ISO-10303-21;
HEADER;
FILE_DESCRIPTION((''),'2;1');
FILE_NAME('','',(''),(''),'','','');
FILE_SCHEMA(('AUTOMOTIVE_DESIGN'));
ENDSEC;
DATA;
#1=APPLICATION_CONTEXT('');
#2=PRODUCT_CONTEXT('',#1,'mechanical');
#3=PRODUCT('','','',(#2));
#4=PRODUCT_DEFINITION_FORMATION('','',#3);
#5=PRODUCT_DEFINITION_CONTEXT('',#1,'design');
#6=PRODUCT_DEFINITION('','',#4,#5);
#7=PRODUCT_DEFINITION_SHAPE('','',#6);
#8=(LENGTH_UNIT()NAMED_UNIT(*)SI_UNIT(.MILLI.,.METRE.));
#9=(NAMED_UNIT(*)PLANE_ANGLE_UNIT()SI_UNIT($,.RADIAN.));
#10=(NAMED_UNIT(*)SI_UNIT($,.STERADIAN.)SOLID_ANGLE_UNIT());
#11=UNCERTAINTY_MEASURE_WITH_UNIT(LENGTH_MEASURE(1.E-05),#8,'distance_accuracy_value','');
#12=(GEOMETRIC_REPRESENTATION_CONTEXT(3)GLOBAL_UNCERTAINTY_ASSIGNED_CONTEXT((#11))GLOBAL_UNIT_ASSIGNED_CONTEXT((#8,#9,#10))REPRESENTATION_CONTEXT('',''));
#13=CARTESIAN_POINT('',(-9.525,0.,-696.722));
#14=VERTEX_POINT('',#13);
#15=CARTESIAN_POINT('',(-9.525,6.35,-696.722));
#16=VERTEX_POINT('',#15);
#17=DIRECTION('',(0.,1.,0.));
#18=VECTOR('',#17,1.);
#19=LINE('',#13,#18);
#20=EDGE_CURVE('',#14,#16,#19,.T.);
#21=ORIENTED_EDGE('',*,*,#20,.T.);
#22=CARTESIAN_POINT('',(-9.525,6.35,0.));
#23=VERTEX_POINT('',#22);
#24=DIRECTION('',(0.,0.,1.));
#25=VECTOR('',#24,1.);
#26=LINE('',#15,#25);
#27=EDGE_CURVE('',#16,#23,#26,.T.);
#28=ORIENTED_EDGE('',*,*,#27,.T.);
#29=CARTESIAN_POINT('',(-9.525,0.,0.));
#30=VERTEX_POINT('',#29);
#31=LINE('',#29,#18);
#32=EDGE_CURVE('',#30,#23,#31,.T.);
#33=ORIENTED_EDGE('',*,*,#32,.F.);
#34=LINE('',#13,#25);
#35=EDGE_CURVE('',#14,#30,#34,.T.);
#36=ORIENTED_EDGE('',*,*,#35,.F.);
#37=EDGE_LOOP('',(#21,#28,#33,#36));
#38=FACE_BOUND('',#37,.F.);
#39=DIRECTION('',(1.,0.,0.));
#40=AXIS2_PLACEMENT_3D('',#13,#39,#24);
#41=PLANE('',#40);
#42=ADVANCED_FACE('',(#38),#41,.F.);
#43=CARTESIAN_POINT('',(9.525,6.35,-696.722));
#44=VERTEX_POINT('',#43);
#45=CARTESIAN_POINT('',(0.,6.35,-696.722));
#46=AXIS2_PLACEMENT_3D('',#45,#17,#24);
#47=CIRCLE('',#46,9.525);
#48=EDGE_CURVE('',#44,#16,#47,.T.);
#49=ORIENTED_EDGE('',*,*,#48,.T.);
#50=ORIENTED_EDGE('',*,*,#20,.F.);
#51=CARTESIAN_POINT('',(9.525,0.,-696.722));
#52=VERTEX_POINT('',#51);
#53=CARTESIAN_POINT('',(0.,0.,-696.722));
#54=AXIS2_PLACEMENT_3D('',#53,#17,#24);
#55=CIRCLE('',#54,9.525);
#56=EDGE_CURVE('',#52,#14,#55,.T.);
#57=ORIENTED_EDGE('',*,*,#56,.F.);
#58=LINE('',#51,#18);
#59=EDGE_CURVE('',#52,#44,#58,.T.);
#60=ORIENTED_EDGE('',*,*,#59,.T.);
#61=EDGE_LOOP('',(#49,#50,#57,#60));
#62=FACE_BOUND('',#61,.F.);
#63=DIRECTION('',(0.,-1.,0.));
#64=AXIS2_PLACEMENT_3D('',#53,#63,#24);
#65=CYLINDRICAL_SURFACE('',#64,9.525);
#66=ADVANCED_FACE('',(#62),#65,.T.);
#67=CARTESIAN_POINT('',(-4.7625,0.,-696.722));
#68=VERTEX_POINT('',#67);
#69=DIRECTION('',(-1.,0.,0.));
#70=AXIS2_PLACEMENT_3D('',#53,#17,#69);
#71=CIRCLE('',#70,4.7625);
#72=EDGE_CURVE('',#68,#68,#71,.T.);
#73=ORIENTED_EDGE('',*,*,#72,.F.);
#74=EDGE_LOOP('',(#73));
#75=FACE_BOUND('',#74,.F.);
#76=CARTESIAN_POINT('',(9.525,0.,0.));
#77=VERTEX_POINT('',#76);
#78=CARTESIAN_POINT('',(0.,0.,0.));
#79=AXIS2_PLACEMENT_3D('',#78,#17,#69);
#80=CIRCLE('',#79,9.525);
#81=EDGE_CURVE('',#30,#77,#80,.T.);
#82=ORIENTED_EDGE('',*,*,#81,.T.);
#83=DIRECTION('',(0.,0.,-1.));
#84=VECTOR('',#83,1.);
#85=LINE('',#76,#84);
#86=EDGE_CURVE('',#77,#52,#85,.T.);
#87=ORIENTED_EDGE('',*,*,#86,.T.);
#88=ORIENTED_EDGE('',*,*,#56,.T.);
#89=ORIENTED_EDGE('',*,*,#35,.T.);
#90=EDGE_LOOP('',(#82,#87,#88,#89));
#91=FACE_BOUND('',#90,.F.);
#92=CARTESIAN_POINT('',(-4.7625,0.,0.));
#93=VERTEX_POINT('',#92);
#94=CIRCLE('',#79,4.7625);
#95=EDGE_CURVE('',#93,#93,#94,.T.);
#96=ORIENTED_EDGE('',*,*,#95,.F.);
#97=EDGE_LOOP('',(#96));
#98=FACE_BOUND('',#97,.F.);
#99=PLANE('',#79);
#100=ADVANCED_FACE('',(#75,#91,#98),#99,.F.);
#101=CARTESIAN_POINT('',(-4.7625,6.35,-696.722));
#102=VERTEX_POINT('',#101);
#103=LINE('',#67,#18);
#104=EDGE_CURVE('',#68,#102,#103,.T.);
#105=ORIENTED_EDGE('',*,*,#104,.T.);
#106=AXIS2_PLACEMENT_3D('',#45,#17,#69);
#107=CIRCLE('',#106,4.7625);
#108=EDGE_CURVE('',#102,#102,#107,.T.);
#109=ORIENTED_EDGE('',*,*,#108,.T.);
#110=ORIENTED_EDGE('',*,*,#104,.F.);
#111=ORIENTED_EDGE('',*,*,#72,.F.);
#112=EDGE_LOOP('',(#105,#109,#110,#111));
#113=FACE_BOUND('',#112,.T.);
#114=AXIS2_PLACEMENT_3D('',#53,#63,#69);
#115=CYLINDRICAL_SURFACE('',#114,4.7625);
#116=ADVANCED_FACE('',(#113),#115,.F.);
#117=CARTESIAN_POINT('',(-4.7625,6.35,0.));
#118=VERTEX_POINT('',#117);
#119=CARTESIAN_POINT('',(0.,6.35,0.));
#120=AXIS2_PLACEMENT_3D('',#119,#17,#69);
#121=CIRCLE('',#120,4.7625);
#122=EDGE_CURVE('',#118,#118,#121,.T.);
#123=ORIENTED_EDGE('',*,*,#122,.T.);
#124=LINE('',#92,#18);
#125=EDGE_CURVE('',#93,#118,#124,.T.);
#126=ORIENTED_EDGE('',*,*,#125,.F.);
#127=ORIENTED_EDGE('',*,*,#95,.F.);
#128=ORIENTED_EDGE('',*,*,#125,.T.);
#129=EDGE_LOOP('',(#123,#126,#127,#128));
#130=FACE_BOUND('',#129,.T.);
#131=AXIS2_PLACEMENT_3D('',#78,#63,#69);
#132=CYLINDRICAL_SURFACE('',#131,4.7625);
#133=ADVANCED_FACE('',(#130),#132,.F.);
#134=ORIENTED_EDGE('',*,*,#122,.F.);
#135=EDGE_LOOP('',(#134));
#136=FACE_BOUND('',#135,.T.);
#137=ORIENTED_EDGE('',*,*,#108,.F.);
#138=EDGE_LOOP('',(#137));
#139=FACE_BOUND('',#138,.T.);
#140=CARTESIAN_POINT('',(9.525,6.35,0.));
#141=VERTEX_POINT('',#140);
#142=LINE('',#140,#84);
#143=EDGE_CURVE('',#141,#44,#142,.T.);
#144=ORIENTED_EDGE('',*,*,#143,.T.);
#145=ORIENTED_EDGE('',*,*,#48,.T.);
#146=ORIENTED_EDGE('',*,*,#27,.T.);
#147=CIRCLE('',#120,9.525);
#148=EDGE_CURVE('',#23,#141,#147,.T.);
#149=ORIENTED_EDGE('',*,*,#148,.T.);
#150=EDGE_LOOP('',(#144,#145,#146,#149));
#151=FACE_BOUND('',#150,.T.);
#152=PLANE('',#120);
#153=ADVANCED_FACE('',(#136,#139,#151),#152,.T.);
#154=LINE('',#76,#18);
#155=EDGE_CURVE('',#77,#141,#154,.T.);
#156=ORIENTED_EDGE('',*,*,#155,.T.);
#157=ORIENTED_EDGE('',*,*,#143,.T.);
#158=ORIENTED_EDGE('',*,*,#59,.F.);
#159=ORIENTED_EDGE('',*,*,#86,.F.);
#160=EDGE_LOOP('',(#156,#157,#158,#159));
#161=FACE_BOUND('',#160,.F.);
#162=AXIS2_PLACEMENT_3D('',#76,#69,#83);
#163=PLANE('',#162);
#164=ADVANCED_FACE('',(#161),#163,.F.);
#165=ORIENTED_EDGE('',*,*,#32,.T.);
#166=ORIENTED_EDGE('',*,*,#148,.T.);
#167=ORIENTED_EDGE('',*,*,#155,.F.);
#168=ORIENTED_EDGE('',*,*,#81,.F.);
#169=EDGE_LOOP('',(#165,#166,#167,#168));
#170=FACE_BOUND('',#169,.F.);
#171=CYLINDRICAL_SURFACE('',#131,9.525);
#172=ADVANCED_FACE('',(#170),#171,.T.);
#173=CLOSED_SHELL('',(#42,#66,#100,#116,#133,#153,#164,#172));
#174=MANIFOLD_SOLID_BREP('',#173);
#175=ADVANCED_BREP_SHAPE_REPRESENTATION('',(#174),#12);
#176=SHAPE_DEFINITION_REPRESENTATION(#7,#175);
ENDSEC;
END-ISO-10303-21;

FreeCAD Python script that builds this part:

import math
import FreeCAD as App
import Part
import Sketcher

V = App.Vector
Q = App.Units.Quantity

doc = App.newDocument("Part")
params = doc.addObject("Spreadsheet::Sheet", "Params")
for row, (alias, value) in enumerate([
    ("sketch1_diameter", "0.375 in"),
    ("sketch1_radius", "0.375 in"),
    ("sketch1_height", "27.43 in"),
    ("pad1_length", "0.25 in"),
], start=1):
    params.set(f"A{row}", alias)
    params.set(f"B{row}", "=" + value)
    params.setAlias(f"B{row}", alias)

body = doc.addObject("PartDesign::Body", "Body")

sketch1 = body.newObject("Sketcher::SketchObject", "Sketch")
sketch1.AttachmentSupport = (doc.getObject("XZ_Plane"), [""])
sketch1.MapMode = "FlatFace"
sketch1.addGeometry([
    Part.LineSegment(V(-9.525, -696.722, 0), V(-9.525, 0, 0)),
    Part.ArcOfCircle(Part.Circle(V(0, 0, 0), V(0, 0, 1), 9.525), math.radians(0), math.radians(180)),
    Part.LineSegment(V(9.525, 0, 0), V(9.525, -696.722, 0)),
    Part.ArcOfCircle(Part.Circle(V(0, -696.722, 0), V(0, 0, 1), 9.525), math.radians(180), math.radians(360)),
    Part.Circle(V(0, -696.722, 0), V(0, 0, 1), 4.7625),
    Part.Circle(V(0, 0, 0), V(0, 0, 1), 4.7625),
], False)
sketch1.addConstraint([
    Sketcher.Constraint("Tangent", 0, 2, 1, 2),
    Sketcher.Constraint("Tangent", 1, 1, 2, 1),
    Sketcher.Constraint("Tangent", 2, 2, 3, 2),
    Sketcher.Constraint("Tangent", 3, 1, 0, 1),
    Sketcher.Constraint("Vertical", 0),
    Sketcher.Constraint("Vertical", 2),
    Sketcher.Constraint("Coincident", 1, 3, -1, 1),
    Sketcher.Constraint("Coincident", 5, 3, -1, 1),
    Sketcher.Constraint("Coincident", 4, 3, 3, 3),
    Sketcher.Constraint("Equal", 4, 5),
    Sketcher.Constraint("Diameter", 4, Q("0.375 in")),
    Sketcher.Constraint("Radius", 1, Q("0.375 in")),
    Sketcher.Constraint("DistanceY", 0, 1, 0, 2, Q("27.43 in")),
])
sketch1.setExpression("Constraints[10]", "Params.sketch1_diameter")
sketch1.setExpression("Constraints[11]", "Params.sketch1_radius")
sketch1.setExpression("Constraints[12]", "Params.sketch1_height")
pad1 = body.newObject("PartDesign::Pad", "Pad")
pad1.Profile = sketch1
pad1.setExpression("Length", "Params.pad1_length")
pad1.Reversed = True

doc.recompute()
